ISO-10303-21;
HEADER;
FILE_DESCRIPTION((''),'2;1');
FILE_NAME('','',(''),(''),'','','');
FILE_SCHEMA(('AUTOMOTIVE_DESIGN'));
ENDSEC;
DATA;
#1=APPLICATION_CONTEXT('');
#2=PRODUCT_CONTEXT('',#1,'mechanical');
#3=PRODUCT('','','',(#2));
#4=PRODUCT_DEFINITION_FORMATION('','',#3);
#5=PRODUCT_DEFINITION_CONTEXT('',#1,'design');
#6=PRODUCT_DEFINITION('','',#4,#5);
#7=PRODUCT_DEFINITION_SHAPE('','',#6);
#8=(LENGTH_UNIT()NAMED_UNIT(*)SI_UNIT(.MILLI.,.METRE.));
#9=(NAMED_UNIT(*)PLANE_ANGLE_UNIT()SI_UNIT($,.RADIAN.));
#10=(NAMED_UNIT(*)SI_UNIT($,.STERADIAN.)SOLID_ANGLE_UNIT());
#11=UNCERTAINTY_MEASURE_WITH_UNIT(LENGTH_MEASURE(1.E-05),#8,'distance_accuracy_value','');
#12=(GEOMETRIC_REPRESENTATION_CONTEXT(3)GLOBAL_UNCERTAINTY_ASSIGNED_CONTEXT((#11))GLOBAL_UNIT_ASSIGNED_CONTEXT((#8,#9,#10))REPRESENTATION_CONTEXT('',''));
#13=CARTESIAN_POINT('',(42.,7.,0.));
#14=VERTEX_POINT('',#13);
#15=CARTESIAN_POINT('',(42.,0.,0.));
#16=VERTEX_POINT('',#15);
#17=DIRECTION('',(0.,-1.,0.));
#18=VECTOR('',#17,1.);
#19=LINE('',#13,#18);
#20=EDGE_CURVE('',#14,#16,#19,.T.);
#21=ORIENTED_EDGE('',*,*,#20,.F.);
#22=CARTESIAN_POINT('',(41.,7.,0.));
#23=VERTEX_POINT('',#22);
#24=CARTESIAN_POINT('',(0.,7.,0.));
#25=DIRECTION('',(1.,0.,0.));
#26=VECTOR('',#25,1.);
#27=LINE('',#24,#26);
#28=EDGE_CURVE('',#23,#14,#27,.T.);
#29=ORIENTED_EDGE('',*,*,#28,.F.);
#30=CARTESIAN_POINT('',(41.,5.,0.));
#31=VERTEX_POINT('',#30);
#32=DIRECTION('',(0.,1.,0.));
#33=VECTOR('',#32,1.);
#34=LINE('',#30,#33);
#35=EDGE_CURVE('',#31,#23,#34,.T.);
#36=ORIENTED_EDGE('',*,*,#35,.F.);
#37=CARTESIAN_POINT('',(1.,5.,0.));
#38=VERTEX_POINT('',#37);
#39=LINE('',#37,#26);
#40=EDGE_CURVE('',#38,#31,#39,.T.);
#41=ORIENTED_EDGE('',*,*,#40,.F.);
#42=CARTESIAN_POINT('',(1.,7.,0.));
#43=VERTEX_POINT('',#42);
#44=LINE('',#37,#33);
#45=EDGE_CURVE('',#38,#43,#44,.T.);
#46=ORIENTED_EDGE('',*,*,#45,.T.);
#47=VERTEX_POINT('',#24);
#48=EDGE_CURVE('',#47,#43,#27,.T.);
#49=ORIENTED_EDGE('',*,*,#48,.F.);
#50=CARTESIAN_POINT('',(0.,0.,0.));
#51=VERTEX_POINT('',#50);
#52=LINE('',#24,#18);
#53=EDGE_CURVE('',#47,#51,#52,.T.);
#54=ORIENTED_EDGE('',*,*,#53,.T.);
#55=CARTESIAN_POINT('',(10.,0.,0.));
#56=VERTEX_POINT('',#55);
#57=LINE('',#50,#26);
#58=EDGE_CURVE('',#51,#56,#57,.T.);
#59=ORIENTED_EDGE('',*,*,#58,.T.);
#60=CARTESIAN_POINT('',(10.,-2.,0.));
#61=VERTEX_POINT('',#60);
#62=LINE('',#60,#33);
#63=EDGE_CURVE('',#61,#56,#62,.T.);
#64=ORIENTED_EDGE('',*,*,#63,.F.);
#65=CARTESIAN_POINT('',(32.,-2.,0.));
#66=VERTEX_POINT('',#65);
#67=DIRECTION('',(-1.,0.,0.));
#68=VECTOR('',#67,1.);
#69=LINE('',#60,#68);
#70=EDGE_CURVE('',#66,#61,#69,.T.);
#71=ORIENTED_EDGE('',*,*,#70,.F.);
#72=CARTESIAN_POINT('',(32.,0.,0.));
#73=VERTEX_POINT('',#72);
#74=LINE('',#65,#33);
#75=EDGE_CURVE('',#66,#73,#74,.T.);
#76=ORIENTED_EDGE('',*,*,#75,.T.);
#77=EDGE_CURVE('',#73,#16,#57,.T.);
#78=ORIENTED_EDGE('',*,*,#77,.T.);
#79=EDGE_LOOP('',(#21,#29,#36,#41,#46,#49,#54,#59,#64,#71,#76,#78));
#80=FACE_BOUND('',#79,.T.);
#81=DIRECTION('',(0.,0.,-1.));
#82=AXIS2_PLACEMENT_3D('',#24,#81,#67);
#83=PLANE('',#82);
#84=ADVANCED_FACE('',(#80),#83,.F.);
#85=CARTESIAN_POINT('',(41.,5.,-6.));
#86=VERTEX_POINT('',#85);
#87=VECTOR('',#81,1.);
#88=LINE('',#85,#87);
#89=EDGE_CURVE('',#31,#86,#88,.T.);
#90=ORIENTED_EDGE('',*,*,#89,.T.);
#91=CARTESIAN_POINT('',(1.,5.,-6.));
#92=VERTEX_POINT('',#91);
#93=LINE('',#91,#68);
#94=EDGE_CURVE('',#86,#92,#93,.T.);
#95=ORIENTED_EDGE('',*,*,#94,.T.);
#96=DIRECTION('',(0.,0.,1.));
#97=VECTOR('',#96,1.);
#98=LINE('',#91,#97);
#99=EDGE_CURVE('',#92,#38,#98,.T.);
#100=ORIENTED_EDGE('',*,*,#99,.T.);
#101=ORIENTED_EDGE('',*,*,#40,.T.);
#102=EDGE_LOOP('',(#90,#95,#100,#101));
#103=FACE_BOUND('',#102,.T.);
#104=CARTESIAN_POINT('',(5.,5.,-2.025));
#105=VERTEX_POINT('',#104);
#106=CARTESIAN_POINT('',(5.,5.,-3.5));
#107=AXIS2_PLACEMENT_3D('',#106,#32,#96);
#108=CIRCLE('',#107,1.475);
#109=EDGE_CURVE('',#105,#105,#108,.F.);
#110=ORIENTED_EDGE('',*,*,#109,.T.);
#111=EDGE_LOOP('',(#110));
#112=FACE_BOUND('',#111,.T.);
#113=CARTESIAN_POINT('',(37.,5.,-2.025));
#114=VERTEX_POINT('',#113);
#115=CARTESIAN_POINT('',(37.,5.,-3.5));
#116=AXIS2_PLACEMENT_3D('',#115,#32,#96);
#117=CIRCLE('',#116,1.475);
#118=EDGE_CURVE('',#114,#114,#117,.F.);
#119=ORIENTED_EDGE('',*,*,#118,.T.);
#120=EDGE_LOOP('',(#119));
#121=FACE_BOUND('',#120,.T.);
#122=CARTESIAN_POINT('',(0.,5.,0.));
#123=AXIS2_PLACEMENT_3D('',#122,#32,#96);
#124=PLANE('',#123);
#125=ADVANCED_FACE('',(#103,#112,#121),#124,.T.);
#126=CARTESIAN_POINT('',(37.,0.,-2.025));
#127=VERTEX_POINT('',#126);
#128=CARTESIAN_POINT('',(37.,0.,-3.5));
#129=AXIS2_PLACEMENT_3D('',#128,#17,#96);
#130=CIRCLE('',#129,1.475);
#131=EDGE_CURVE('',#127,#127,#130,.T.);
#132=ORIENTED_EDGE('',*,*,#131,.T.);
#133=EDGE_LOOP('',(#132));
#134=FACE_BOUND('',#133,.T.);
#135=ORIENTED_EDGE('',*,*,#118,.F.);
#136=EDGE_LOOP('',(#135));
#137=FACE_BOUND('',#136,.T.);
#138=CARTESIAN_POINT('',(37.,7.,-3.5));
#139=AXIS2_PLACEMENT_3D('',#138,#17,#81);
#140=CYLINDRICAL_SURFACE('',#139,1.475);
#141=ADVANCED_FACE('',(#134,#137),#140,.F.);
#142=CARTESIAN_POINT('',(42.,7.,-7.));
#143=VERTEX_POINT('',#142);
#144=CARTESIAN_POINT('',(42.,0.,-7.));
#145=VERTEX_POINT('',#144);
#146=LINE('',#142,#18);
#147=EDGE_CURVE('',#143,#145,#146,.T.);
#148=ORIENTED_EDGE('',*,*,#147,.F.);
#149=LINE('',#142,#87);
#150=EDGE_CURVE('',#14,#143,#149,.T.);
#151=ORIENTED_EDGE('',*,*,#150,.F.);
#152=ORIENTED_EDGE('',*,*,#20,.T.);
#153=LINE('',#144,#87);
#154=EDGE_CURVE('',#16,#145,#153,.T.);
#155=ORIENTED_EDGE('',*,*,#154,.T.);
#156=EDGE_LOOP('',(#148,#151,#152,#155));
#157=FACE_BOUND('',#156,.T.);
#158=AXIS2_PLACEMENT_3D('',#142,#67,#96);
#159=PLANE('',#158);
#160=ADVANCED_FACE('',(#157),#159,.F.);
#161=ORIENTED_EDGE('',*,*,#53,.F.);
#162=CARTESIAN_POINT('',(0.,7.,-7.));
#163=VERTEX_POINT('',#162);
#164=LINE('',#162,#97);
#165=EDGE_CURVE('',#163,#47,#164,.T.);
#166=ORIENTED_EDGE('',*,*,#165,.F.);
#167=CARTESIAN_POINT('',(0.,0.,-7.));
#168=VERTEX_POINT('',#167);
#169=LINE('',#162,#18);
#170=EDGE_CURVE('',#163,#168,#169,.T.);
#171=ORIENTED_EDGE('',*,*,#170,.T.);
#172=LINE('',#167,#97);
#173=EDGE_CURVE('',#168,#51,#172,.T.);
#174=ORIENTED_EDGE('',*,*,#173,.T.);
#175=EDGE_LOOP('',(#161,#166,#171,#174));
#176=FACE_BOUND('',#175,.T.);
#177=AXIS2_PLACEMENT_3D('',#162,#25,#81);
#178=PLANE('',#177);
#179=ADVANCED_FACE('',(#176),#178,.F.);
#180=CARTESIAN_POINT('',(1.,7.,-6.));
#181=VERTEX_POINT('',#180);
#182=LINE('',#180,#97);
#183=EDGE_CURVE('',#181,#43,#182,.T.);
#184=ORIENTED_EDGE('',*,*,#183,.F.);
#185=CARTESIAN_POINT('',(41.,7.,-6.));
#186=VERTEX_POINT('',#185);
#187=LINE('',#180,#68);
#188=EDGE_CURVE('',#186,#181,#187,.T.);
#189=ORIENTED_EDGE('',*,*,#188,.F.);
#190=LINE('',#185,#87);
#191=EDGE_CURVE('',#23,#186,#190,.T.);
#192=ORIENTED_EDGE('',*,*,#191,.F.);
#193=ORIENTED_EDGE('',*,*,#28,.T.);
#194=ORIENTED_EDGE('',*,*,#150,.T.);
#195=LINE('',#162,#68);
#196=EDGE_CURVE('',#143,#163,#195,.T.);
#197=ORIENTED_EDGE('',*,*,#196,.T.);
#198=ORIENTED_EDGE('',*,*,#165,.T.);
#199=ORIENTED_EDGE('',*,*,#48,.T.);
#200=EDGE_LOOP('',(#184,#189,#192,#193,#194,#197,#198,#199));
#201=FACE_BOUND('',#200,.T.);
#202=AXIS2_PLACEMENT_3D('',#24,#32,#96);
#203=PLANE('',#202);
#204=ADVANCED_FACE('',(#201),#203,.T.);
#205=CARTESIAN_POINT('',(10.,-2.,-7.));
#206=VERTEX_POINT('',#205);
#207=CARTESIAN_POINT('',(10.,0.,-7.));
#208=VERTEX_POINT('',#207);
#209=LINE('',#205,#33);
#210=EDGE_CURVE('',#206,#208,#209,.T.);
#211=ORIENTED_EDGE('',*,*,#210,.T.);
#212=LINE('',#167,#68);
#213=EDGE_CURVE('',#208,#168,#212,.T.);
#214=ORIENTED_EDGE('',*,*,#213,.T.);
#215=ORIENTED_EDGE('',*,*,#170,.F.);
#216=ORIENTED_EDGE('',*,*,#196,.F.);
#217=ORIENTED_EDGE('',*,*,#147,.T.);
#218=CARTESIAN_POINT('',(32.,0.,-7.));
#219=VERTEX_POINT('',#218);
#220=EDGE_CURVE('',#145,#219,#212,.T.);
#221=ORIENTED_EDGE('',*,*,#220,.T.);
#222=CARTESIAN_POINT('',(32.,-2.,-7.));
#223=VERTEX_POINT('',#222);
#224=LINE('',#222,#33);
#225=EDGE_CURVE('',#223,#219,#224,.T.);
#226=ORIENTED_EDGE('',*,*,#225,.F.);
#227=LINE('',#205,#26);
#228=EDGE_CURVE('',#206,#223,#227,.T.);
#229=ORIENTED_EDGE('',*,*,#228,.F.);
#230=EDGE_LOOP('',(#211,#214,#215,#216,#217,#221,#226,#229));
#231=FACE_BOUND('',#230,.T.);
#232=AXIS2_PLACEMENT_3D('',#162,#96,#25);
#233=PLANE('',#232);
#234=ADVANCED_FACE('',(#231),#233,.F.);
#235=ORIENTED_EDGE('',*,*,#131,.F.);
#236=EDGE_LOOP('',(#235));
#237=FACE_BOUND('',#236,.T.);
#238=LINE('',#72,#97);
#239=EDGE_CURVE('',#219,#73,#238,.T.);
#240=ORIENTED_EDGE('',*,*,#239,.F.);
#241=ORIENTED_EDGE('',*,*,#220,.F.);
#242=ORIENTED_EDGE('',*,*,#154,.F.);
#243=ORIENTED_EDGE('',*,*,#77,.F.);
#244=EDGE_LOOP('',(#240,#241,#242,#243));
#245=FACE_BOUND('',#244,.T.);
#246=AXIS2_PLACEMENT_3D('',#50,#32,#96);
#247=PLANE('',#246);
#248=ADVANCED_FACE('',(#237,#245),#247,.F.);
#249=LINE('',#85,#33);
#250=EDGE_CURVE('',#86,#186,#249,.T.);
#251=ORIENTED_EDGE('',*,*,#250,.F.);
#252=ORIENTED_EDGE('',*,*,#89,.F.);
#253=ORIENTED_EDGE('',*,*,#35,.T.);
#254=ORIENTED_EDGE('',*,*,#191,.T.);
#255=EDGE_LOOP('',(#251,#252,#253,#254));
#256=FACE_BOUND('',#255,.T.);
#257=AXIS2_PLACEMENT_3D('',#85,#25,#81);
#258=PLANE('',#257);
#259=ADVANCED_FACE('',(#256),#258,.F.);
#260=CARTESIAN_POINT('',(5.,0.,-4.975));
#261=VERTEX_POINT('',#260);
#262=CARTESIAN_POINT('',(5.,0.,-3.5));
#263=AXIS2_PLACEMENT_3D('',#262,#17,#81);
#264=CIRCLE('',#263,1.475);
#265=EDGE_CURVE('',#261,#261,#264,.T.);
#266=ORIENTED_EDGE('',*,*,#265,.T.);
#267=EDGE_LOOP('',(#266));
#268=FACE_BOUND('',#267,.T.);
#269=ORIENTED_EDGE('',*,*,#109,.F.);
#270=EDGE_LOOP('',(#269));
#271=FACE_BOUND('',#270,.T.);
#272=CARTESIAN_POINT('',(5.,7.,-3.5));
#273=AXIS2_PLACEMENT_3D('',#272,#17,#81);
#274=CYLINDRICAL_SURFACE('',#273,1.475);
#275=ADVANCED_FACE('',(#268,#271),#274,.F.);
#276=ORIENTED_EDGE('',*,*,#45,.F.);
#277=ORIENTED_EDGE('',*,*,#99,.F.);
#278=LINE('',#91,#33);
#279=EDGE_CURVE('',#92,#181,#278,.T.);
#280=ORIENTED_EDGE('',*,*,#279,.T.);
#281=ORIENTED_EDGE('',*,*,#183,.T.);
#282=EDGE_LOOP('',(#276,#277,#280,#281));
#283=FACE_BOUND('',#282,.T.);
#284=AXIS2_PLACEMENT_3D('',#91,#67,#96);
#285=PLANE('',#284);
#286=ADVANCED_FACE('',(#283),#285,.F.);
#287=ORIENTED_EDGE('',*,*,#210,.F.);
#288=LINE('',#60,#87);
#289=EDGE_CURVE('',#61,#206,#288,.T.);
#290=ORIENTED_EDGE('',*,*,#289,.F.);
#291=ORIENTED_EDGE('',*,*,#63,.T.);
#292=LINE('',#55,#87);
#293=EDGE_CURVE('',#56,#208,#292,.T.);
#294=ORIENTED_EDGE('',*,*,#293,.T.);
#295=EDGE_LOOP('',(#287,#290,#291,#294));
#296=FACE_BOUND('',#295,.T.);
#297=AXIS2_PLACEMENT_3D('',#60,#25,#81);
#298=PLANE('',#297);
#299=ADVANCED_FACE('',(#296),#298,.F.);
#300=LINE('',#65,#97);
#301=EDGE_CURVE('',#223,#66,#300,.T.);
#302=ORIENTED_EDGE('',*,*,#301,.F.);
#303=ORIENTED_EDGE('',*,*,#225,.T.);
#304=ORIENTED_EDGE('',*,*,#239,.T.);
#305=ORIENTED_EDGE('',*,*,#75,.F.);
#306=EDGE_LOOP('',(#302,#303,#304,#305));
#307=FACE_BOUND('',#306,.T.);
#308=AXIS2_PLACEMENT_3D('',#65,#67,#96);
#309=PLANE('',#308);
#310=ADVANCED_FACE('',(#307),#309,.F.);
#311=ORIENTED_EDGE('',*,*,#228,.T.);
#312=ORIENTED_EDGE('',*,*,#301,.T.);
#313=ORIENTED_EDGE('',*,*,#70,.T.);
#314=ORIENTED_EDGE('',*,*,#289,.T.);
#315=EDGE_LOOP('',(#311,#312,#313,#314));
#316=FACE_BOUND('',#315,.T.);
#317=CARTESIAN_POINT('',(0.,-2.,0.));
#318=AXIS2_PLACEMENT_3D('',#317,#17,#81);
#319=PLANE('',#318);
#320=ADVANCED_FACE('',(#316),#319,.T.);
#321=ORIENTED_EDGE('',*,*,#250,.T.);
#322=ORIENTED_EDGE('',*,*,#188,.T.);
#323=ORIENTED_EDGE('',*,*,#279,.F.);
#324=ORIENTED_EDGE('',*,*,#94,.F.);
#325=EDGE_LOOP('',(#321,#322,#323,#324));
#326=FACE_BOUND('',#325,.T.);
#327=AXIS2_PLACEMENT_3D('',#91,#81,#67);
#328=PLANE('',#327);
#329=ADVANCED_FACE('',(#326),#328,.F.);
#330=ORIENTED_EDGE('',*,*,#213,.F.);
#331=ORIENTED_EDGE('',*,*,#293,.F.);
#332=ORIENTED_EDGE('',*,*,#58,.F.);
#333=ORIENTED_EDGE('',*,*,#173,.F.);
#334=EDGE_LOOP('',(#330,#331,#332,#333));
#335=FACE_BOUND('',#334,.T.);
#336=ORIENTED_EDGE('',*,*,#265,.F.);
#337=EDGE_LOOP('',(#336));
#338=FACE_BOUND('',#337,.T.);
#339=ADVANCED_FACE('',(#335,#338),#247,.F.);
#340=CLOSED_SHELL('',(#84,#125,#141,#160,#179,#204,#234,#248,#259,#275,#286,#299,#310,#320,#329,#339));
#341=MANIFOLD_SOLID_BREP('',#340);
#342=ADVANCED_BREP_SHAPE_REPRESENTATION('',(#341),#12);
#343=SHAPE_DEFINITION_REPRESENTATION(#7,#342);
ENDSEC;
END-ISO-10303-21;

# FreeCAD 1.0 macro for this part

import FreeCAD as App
import Part
import Sketcher

doc = App.newDocument("Part")
params = doc.addObject("Spreadsheet::Sheet", "Params")
for row, (alias, value) in enumerate([
    ("sketch1_width", "42 mm"),
    ("sketch1_height", "7 mm"),
    ("pad1_length", "7 mm"),
    ("sketch2_diameter", "2.95 mm"),
    ("sketch3_width", "40 mm"),
    ("sketch3_height", "6 mm"),
    ("pocket2_length", "2 mm"),
    ("sketch4_width", "22 mm"),
    ("sketch4_height", "7 mm"),
    ("pad2_length", "2 mm"),
], start=1):
    params.set(f"A{row}", alias)
    params.set(f"B{row}", "=" + value)
    params.setAlias(f"B{row}", alias)

body = doc.addObject("PartDesign::Body", "Body")

# Sketch on XZ plane
sketch1 = body.newObject("Sketcher::SketchObject", "Sketch")
sketch1.AttachmentSupport = (doc.getObject("XZ_Plane"), [""])
sketch1.MapMode = "FlatFace"
sketch1.addGeometry([
    Part.LineSegment(App.Vector(0, -7, 0), App.Vector(0, 0, 0)),
    Part.LineSegment(App.Vector(0, 0, 0), App.Vector(42, 0, 0)),
    Part.LineSegment(App.Vector(42, 0, 0), App.Vector(42, -7, 0)),
    Part.LineSegment(App.Vector(42, -7, 0), App.Vector(0, -7, 0)),
], False)
sketch1.addConstraint([
    Sketcher.Constraint("Coincident", 0, 2, 1, 1),
    Sketcher.Constraint("Coincident", 1, 2, 2, 1),
    Sketcher.Constraint("Coincident", 2, 2, 3, 1),
    Sketcher.Constraint("Coincident", 3, 2, 0, 1),
    Sketcher.Constraint("Vertical", 0),
    Sketcher.Constraint("Horizontal", 1),
    Sketcher.Constraint("Vertical", 2),
    Sketcher.Constraint("Horizontal", 3),
    Sketcher.Constraint("Coincident", 0, 2, -1, 1),
    Sketcher.Constraint("DistanceX", 1, 1, 1, 2, 42.0),
    Sketcher.Constraint("DistanceY", 0, 1, 0, 2, 7.0),
])
sketch1.setExpression("Constraints[9]", "Params.sketch1_width")
sketch1.setExpression("Constraints[10]", "Params.sketch1_height")
pad1 = body.newObject("PartDesign::Pad", "Pad")
pad1.Profile = sketch1
pad1.setExpression("Length", "Params.pad1_length")
pad1.Reversed = True

# Sketch on XZ plane
sketch2 = body.newObject("Sketcher::SketchObject", "Sketch001")
sketch2.AttachmentSupport = (doc.getObject("XZ_Plane"), [""])
sketch2.MapMode = "FlatFace"
sketch2.addGeometry([
    Part.Circle(App.Vector(5, -3.5, 0), App.Vector(0, 0, 1), 1.5),
    Part.Circle(App.Vector(37, -3.5, 0), App.Vector(0, 0, 1), 1.5),
], False)
sketch2.addConstraint([
    Sketcher.Constraint("Equal", 0, 1),
    Sketcher.Constraint("Horizontal", 0, 3, 1, 3),
    Sketcher.Constraint("Diameter", 0, 2.95),
    Sketcher.Constraint("DistanceX", -1, 1, 0, 3, 5.0),
    Sketcher.Constraint("DistanceX", -1, 1, 1, 3, 37.0),
    Sketcher.Constraint("DistanceY", 0, 3, -1, 1, 3.5),
])
sketch2.setExpression("Constraints[2]", "Params.sketch2_diameter")
pocket1 = body.newObject("PartDesign::Pocket", "Pocket")
pocket1.Profile = sketch2
pocket1.Type = "ThroughAll"

# Sketch on XZ plane
sketch3 = body.newObject("Sketcher::SketchObject", "Sketch002")
sketch3.AttachmentSupport = (doc.getObject("XZ_Plane"), [""])
sketch3.MapMode = "FlatFace"
sketch3.AttachmentOffset = App.Placement(App.Vector(0, 0, -7), App.Rotation())
sketch3.addGeometry([
    Part.LineSegment(App.Vector(1, -6, 0), App.Vector(1, 0, 0)),
    Part.LineSegment(App.Vector(1, 0, 0), App.Vector(41, 0, 0)),
    Part.LineSegment(App.Vector(41, 0, 0), App.Vector(41, -6, 0)),
    Part.LineSegment(App.Vector(41, -6, 0), App.Vector(1, -6, 0)),
], False)
sketch3.addConstraint([
    Sketcher.Constraint("Coincident", 0, 2, 1, 1),
    Sketcher.Constraint("Coincident", 1, 2, 2, 1),
    Sketcher.Constraint("Coincident", 2, 2, 3, 1),
    Sketcher.Constraint("Coincident", 3, 2, 0, 1),
    Sketcher.Constraint("Vertical", 0),
    Sketcher.Constraint("Horizontal", 1),
    Sketcher.Constraint("Vertical", 2),
    Sketcher.Constraint("Horizontal", 3),
    Sketcher.Constraint("PointOnObject", 0, 2, -1),
    Sketcher.Constraint("DistanceX", 1, 1, 1, 2, 40.0),
    Sketcher.Constraint("DistanceY", 0, 1, 0, 2, 6.0),
    Sketcher.Constraint("DistanceX", -1, 1, 0, 2, 1.0),
])
sketch3.setExpression("Constraints[9]", "Params.sketch3_width")
sketch3.setExpression("Constraints[10]", "Params.sketch3_height")
pocket2 = body.newObject("PartDesign::Pocket", "Pocket001")
pocket2.Profile = sketch3
pocket2.setExpression("Length", "Params.pocket2_length")
pocket2.Reversed = True

# Sketch on XZ plane
sketch4 = body.newObject("Sketcher::SketchObject", "Sketch003")
sketch4.AttachmentSupport = (doc.getObject("XZ_Plane"), [""])
sketch4.MapMode = "FlatFace"
sketch4.addGeometry([
    Part.LineSegment(App.Vector(10, 0, 0), App.Vector(10, -7, 0)),
    Part.LineSegment(App.Vector(10, -7, 0), App.Vector(32, -7, 0)),
    Part.LineSegment(App.Vector(32, -7, 0), App.Vector(32, 0, 0)),
    Part.LineSegment(App.Vector(32, 0, 0), App.Vector(10, 0, 0)),
], False)
sketch4.addConstraint([
    Sketcher.Constraint("Coincident", 0, 2, 1, 1),
    Sketcher.Constraint("Coincident", 1, 2, 2, 1),
    Sketcher.Constraint("Coincident", 2, 2, 3, 1),
    Sketcher.Constraint("Coincident", 3, 2, 0, 1),
    Sketcher.Constraint("Vertical", 0),
    Sketcher.Constraint("Horizontal", 1),
    Sketcher.Constraint("Vertical", 2),
    Sketcher.Constraint("Horizontal", 3),
    Sketcher.Constraint("PointOnObject", 2, 2, -1),
    Sketcher.Constraint("DistanceX", 1, 1, 1, 2, 22.0),
    Sketcher.Constraint("DistanceY", 0, 2, 0, 1, 7.0),
    Sketcher.Constraint("DistanceX", -1, 1, 0, 2, 10.0),
])
sketch4.setExpression("Constraints[9]", "Params.sketch4_width")
sketch4.setExpression("Constraints[10]", "Params.sketch4_height")
pad2 = body.newObject("PartDesign::Pad", "Pad001")
pad2.Profile = sketch4
pad2.setExpression("Length", "Params.pad2_length")

doc.recompute()
